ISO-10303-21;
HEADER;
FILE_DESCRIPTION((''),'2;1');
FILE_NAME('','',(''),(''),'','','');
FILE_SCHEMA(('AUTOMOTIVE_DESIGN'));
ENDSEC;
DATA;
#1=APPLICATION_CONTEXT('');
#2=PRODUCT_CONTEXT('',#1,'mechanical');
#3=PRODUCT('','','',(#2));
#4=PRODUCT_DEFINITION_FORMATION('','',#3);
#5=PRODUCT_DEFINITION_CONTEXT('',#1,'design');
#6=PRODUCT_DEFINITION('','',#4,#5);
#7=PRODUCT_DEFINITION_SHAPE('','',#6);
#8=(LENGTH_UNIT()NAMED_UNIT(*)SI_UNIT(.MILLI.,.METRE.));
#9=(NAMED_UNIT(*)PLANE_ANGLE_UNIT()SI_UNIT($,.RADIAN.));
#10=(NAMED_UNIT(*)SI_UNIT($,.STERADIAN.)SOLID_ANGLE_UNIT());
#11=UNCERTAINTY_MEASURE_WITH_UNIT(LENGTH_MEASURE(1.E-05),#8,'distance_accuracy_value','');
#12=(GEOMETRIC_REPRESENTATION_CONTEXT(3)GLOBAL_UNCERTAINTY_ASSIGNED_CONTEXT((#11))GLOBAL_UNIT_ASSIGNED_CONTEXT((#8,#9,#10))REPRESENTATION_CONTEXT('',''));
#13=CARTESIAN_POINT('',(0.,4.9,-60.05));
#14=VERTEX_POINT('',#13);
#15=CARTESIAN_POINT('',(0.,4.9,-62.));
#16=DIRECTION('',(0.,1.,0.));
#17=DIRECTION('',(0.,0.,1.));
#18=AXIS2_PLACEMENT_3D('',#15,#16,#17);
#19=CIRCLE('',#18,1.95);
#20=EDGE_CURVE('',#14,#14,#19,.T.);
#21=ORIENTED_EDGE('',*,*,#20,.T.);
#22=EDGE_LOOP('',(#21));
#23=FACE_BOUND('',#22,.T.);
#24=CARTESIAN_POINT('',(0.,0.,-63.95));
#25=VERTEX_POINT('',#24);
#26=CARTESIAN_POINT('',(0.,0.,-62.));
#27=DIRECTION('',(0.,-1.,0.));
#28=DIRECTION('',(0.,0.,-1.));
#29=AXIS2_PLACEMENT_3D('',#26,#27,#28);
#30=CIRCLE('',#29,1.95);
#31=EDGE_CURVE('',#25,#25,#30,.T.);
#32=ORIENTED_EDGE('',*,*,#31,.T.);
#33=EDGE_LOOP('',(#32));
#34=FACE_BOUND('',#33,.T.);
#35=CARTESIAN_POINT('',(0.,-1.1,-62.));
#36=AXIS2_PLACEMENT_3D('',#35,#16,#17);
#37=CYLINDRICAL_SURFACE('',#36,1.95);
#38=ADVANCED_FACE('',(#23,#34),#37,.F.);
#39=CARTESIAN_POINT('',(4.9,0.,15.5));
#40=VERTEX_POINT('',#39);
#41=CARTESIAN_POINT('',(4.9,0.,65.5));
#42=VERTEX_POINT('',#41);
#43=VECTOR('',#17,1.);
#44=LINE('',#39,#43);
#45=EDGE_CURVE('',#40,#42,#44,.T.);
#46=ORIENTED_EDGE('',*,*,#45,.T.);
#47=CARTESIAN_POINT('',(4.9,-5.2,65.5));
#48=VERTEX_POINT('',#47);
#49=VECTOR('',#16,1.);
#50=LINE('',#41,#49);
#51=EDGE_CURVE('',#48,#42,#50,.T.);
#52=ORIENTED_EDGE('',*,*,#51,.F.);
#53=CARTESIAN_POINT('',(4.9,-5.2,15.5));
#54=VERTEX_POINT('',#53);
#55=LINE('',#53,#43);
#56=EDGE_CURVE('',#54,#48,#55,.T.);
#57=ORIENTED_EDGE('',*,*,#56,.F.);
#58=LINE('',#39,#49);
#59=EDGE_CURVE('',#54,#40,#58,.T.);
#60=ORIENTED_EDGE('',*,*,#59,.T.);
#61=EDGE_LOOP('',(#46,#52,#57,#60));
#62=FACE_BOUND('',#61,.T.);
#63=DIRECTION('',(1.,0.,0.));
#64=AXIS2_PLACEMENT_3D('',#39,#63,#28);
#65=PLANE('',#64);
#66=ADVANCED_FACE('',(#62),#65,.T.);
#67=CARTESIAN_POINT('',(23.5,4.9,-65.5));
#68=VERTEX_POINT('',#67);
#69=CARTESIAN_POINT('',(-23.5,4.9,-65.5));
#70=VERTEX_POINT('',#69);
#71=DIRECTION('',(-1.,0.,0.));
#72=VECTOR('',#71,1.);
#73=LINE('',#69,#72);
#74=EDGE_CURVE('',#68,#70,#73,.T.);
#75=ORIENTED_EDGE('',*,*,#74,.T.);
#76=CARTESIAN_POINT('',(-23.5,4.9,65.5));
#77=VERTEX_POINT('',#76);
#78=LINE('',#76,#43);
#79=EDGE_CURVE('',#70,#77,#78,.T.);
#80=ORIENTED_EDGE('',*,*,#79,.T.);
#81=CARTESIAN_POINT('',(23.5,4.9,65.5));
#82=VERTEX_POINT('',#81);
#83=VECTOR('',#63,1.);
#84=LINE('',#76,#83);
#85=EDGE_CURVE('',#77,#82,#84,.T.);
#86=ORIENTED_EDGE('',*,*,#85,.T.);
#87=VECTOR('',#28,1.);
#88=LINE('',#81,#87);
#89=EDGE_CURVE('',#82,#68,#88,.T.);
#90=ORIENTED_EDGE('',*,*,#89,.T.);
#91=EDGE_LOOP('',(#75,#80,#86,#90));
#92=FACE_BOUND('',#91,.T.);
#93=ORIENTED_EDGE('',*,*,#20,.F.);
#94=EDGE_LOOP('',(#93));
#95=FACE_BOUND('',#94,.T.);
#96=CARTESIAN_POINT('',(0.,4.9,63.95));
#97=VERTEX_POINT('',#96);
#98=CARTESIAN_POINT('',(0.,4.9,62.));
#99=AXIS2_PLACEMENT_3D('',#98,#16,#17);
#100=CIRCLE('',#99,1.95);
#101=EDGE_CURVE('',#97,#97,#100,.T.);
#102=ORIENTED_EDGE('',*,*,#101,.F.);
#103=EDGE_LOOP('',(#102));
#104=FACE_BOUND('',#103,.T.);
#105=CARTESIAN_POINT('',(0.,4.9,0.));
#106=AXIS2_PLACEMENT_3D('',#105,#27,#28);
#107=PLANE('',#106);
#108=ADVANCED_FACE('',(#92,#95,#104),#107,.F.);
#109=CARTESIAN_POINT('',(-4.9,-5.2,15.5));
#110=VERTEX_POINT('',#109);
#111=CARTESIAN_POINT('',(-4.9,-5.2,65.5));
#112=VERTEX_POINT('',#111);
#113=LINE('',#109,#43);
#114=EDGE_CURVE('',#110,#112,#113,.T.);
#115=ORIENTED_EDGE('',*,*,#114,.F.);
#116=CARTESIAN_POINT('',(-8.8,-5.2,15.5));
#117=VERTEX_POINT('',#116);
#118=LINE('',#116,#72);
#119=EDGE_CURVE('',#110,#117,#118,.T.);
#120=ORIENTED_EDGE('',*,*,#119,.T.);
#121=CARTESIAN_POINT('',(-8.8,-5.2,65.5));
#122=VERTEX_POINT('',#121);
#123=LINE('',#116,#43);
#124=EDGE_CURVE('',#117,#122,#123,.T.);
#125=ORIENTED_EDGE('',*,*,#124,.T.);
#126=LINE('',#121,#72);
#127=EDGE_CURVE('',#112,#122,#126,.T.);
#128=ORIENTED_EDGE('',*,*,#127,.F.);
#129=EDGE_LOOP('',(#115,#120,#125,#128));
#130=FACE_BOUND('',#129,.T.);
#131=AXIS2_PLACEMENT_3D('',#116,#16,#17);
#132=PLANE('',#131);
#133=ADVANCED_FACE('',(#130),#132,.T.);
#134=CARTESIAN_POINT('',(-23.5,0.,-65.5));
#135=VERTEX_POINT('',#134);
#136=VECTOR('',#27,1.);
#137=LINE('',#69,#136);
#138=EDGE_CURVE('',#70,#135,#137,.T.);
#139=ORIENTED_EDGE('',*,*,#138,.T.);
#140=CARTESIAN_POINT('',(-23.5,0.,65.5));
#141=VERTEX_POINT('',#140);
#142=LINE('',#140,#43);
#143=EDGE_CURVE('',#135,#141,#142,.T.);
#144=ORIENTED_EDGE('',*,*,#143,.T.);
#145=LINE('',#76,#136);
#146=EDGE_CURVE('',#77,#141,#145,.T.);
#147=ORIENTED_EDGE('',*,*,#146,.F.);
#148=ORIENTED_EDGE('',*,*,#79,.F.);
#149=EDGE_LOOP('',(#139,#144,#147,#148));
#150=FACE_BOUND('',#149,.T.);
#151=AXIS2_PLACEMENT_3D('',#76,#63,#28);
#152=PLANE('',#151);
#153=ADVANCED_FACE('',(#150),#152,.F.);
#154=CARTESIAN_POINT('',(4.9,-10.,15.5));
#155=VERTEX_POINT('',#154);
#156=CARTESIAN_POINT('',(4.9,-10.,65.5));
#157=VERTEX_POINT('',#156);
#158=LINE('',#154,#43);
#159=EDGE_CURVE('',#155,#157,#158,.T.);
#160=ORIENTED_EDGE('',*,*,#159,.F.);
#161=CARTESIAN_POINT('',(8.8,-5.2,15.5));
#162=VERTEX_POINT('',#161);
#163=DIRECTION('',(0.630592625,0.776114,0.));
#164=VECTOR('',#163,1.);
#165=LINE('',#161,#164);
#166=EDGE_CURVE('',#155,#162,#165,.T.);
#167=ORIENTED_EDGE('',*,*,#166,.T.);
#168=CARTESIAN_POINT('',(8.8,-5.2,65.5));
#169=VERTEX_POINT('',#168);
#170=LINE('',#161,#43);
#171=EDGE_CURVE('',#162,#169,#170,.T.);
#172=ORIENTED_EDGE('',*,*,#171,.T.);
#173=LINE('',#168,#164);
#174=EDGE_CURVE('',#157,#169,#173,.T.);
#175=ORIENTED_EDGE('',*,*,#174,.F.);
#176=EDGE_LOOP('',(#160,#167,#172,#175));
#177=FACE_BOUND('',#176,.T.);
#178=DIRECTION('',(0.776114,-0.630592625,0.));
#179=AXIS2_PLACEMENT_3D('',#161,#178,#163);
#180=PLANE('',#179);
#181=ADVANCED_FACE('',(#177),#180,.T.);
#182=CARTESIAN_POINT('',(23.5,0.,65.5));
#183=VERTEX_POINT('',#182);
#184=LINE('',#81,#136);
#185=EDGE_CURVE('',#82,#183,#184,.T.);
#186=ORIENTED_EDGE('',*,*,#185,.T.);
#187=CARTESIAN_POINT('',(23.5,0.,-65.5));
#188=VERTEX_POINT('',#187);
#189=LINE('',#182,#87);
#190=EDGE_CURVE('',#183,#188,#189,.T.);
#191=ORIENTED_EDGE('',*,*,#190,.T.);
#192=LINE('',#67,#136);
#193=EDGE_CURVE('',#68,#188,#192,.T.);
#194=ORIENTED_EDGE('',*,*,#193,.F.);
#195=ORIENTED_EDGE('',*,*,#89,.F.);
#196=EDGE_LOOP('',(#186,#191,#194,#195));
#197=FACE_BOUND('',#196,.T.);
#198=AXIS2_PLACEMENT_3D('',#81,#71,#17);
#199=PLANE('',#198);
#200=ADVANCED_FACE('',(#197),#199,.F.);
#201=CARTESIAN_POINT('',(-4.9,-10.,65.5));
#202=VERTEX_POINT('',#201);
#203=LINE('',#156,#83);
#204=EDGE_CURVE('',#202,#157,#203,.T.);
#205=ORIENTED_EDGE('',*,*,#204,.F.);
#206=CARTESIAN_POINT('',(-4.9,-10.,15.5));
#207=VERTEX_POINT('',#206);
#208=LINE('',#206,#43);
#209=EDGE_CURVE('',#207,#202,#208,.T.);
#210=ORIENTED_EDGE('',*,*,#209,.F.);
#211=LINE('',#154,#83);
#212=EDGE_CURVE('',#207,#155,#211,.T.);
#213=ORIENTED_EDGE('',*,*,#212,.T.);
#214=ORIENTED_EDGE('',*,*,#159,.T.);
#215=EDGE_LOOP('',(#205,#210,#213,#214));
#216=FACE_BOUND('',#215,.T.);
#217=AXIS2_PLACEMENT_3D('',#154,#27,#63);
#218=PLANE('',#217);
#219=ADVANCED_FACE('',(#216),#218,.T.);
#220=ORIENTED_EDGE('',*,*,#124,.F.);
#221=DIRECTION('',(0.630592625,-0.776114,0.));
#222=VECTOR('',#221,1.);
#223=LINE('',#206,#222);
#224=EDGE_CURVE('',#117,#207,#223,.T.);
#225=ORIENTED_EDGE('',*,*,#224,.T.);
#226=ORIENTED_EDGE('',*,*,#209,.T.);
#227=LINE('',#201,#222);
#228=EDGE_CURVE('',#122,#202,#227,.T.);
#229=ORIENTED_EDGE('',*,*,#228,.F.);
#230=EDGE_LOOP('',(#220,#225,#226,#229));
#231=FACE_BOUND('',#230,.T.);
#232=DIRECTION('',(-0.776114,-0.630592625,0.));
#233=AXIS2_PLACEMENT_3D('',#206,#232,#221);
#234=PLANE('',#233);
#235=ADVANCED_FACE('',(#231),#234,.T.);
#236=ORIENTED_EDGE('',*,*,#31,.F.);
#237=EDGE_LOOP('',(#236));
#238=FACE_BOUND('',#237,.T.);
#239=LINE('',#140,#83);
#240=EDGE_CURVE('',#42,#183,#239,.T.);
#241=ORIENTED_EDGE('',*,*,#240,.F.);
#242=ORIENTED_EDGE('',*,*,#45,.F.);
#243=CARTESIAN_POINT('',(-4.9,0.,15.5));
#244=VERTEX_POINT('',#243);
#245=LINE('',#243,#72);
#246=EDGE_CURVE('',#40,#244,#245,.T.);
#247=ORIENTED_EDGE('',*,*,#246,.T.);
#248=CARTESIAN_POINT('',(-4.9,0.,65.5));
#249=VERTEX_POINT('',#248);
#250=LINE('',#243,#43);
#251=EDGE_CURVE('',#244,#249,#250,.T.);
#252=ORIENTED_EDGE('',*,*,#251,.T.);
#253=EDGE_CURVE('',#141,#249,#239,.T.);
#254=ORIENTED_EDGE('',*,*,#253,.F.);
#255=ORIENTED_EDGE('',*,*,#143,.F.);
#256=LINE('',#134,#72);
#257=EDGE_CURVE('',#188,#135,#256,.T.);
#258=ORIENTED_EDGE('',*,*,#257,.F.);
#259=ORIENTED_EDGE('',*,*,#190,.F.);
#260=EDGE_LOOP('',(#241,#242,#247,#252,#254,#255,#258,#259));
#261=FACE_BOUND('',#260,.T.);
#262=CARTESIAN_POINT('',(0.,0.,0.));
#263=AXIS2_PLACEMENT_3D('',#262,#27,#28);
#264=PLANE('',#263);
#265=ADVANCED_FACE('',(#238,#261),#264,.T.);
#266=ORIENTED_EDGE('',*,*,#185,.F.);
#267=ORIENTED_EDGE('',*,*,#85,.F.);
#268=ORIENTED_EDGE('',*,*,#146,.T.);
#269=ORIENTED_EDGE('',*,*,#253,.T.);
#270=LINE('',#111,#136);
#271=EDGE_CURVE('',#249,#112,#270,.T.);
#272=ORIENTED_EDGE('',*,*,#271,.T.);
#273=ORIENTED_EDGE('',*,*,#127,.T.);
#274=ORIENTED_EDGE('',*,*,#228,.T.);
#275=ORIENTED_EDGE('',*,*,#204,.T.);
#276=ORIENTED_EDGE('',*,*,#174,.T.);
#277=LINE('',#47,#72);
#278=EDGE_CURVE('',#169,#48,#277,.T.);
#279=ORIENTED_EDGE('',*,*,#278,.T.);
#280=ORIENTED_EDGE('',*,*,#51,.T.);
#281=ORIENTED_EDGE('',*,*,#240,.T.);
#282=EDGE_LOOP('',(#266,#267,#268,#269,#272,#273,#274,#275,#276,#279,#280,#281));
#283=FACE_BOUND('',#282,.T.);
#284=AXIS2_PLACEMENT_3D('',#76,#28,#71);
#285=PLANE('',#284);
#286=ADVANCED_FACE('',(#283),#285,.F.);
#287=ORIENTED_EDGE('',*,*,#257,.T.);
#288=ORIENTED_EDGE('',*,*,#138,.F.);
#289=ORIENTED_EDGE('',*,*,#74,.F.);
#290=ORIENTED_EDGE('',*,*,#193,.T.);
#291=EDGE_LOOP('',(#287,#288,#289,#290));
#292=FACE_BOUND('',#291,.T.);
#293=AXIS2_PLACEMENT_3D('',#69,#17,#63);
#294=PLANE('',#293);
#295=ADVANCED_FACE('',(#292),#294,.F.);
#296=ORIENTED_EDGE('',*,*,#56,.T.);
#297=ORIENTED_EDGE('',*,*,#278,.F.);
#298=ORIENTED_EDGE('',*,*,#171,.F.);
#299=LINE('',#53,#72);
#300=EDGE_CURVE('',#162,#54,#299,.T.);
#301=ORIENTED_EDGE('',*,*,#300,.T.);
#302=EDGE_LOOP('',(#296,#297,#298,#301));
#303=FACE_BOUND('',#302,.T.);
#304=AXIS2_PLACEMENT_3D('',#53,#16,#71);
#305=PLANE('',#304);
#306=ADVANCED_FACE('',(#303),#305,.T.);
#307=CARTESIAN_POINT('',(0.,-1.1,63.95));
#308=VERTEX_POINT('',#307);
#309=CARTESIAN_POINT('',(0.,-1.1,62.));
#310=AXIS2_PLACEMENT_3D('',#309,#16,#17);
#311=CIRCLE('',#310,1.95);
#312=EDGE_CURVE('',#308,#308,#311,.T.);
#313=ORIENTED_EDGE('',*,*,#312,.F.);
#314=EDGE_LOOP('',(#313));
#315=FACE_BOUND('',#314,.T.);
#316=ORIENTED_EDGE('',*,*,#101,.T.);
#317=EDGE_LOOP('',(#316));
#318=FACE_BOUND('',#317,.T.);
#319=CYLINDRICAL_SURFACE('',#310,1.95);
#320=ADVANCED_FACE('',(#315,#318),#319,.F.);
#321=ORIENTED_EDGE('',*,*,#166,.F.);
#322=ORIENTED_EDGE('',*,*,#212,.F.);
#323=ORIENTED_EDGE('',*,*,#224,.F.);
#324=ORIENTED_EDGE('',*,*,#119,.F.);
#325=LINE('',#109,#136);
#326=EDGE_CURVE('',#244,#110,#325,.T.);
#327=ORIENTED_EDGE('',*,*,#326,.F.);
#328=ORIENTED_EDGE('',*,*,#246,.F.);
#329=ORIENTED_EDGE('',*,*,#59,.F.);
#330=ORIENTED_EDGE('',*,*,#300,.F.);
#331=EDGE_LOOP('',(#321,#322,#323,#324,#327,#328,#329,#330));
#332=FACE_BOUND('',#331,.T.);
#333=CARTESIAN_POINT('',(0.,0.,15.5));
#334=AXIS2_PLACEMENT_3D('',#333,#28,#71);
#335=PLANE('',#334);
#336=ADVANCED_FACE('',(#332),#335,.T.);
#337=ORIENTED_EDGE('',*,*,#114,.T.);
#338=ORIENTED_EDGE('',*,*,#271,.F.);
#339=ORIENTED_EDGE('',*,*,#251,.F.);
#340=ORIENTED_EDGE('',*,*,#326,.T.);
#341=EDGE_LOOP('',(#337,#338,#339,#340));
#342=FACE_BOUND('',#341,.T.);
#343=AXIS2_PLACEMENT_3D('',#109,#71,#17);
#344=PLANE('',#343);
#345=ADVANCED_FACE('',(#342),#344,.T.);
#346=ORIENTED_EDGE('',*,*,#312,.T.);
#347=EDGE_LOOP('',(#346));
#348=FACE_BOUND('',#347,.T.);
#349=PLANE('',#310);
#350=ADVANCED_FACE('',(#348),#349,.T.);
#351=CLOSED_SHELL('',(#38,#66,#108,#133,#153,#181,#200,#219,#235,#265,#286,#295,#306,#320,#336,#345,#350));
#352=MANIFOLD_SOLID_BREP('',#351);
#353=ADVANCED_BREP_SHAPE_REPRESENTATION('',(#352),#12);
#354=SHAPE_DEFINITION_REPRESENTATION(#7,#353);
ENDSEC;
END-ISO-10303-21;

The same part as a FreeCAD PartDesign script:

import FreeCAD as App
import Part
import Sketcher

V = App.Vector
Q = App.Units.Quantity

doc = App.newDocument("Part")
body = doc.addObject("PartDesign::Body", "Body")

# Sketch on XZ plane
sketch1 = body.newObject("Sketcher::SketchObject", "Sketch")
sketch1.AttachmentSupport = (doc.getObject("XZ_Plane"), [""])
sketch1.MapMode = "FlatFace"
sketch1.addGeometry([
    Part.LineSegment(V(-24, -66, 0), V(-24, 66, 0)),
    Part.LineSegment(V(-24, 66, 0), V(24, 66, 0)),
    Part.LineSegment(V(24, 66, 0), V(24, -66, 0)),
    Part.LineSegment(V(24, -66, 0), V(-24, -66, 0)),
], False)
sketch1.addConstraint([
    Sketcher.Constraint("Coincident", 0, 2, 1, 1),
    Sketcher.Constraint("Coincident", 1, 2, 2, 1),
    Sketcher.Constraint("Coincident", 2, 2, 3, 1),
    Sketcher.Constraint("Coincident", 3, 2, 0, 1),
    Sketcher.Constraint("Vertical", 0),
    Sketcher.Constraint("Horizontal", 1),
    Sketcher.Constraint("Vertical", 2),
    Sketcher.Constraint("Horizontal", 3),
    Sketcher.Constraint("Symmetric", 0, 2, 2, 2, -1, 1),
    Sketcher.Constraint("DistanceX", 1, 1, 1, 2, Q("47 mm")),
    Sketcher.Constraint("DistanceY", 0, 1, 0, 2, Q("131 mm")),
])
pad1 = body.newObject("PartDesign::Pad", "Pad")
pad1.Profile = sketch1
pad1.Length = 4.9
pad1.Reversed = True

# Sketch on XY plane
sketch2 = body.newObject("Sketcher::SketchObject", "Sketch001")
sketch2.AttachmentSupport = (doc.getObject("XY_Plane"), [""])
sketch2.MapMode = "FlatFace"
sketch2.AttachmentOffset = App.Placement(V(0, 0, 65.5), App.Rotation())
sketch2.addGeometry([
    Part.LineSegment(V(4.9, 0, 0), V(-4.9, 0, 0)),  # 0
    Part.LineSegment(V(-4.9, 0, 0), V(-4.9, -5.2, 0)),  # 1
    Part.LineSegment(V(-4.9, -5.2, 0), V(-8.8, -5.2, 0)),  # 2
    Part.LineSegment(V(-8.8, -5.2, 0), V(-4.9, -10, 0)),  # 3
    Part.LineSegment(V(-4.9, -10, 0), V(4.9, -10, 0)),  # 4
    Part.LineSegment(V(4.9, -10, 0), V(8.8, -5.2, 0)),  # 5
    Part.LineSegment(V(8.8, -5.2, 0), V(4.9, -5.2, 0)),  # 6
    Part.LineSegment(V(4.9, -5.2, 0), V(4.9, 0, 0)),  # 7
], False)
sketch2.addConstraint([
    Sketcher.Constraint("Coincident", 0, 2, 1, 1),
    Sketcher.Constraint("Coincident", 1, 2, 2, 1),
    Sketcher.Constraint("Coincident", 2, 2, 3, 1),
    Sketcher.Constraint("Coincident", 3, 2, 4, 1),
    Sketcher.Constraint("Coincident", 4, 2, 5, 1),
    Sketcher.Constraint("Coincident", 5, 2, 6, 1),
    Sketcher.Constraint("Coincident", 6, 2, 7, 1),
    Sketcher.Constraint("Coincident", 7, 2, 0, 1),
    Sketcher.Constraint("Horizontal", 0),
    Sketcher.Constraint("Vertical", 1),
    Sketcher.Constraint("Horizontal", 2),
    Sketcher.Constraint("Horizontal", 4),
    Sketcher.Constraint("Horizontal", 6),
    Sketcher.Constraint("Vertical", 7),
    Sketcher.Constraint("Symmetric", 0, 2, 7, 2, -1, 1),
    Sketcher.Constraint("Symmetric", 2, 2, 5, 2, -2),
    Sketcher.Constraint("Vertical", 1, 2, 3, 2),
    Sketcher.Constraint("Vertical", 4, 2, 6, 2),
    Sketcher.Constraint("DistanceX", 0, 2, 0, 1, Q("9.8 mm")),
    Sketcher.Constraint("DistanceX", 2, 2, 2, 1, Q("3.9 mm")),
    Sketcher.Constraint("DistanceY", 1, 2, 1, 1, Q("5.2 mm")),
    Sketcher.Constraint("DistanceY", 3, 2, -1, 1, Q("10 mm")),
])
pad2 = body.newObject("PartDesign::Pad", "Pad001")
pad2.Profile = sketch2
pad2.Length = 50
pad2.Reversed = True

# Sketch on XZ plane
sketch3 = body.newObject("Sketcher::SketchObject", "Sketch002")
sketch3.AttachmentSupport = (doc.getObject("XZ_Plane"), [""])
sketch3.MapMode = "FlatFace"
sketch3.AttachmentOffset = App.Placement(V(0, 0, -4.9), App.Rotation())
sketch3.addGeometry([
    Part.Circle(V(0, -62, 0), V(0, 0, 1), 1.9),
    Part.Circle(V(0, 62, 0), V(0, 0, 1), 1.9),
], False)
sketch3.addConstraint([
    Sketcher.Constraint("Equal", 0, 1),
    Sketcher.Constraint("Symmetric", 0, 3, 1, 3, -1, 1),
    Sketcher.Constraint("PointOnObject", 0, 3, -2),
    Sketcher.Constraint("Diameter", 0, Q("3.9 mm")),
    Sketcher.Constraint("DistanceY", 0, 3, -1, 1, Q("62 mm")),
])
pocket1 = body.newObject("PartDesign::Pocket", "Pocket")
pocket1.Profile = sketch3
pocket1.Length = 6
pocket1.Reversed = True

doc.recompute()
